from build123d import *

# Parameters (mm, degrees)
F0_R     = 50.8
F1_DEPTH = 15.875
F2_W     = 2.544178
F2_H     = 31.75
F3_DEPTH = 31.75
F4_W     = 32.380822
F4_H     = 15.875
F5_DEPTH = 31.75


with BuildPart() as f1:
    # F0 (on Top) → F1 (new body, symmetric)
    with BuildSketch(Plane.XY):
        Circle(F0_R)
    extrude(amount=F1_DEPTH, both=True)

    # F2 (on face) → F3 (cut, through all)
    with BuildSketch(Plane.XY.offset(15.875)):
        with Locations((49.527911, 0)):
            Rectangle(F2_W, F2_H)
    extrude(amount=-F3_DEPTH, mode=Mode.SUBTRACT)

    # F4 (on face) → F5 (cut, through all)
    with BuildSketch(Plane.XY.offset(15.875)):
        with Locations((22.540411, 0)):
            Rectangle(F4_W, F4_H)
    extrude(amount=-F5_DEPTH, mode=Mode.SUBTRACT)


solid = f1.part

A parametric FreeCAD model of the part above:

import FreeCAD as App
import Part
import Sketcher
Q = App.Units.Quantity


def add_polygon(sketch, points):
    """Adds a closed chain of lines whose ends are joined by coincident constraints."""
    first, n = sketch.GeometryCount, len(points)
    for a, b in zip(points, points[1:] + points[:1]):
        sketch.addGeometry(Part.LineSegment(App.Vector(*a, 0), App.Vector(*b, 0)), False)
    for i in range(n):
        sketch.addConstraint(Sketcher.Constraint("Coincident", first + i, 2, first + (i + 1) % n, 1))

doc = App.newDocument("Part")
body = doc.addObject("PartDesign::Body", "Body")

sketch1 = body.newObject("Sketcher::SketchObject", "Sketch")
sketch1.AttachmentSupport = (doc.getObject("XY_Plane"), [""])
sketch1.MapMode = "FlatFace"
sketch1.addGeometry(Part.Circle(App.Vector(0, 0, 0), App.Vector(0, 0, 1), 51), False)
sketch1.addConstraint([
    Sketcher.Constraint("Coincident", 0, 3, -1, 1),
    Sketcher.Constraint("Diameter", 0, Q("4 in")),
])
pad1 = body.newObject("PartDesign::Pad", "Pad")
pad1.Profile = sketch1
pad1.Length = Q("1.25 in")
pad1.Midplane = True

sketch2 = body.newObject("Sketcher::SketchObject", "Sketch001")
sketch2.AttachmentSupport = (doc.getObject("XY_Plane"), [""])
sketch2.MapMode = "FlatFace"
sketch2.AttachmentOffset = App.Placement(App.Vector(0, 0, 0.625 * 25.4), App.Rotation())
add_polygon(sketch2, [(48.3, 15.9), (48.3, -15.9), (50.8, -15.9), (50.8, 15.9)])
sketch2.addConstraint([
    Sketcher.Constraint("Vertical", 0),
    Sketcher.Constraint("Horizontal", 1),
    Sketcher.Constraint("Vertical", 2),
    Sketcher.Constraint("Horizontal", 3),
    Sketcher.Constraint("DistanceX", -1, 1, 1, 2, Q("2 in")),
    Sketcher.Constraint("DistanceY", 0, 2, 0, 1, Q("1.25 in")),
    Sketcher.Constraint("DistanceY", 0, 2, -1, 1, Q("0.625 in")),
    Sketcher.Constraint("DistanceX", 1, 1, 1, 2, Q("2.544178 mm")),
])
pocket1 = body.newObject("PartDesign::Pocket", "Pocket")
pocket1.Profile = sketch2
pocket1.Type = "ThroughAll"

sketch3 = body.newObject("Sketcher::SketchObject", "Sketch002")
sketch3.AttachmentSupport = (doc.getObject("XY_Plane"), [""])
sketch3.MapMode = "FlatFace"
sketch3.AttachmentOffset = App.Placement(App.Vector(0, 0, 0.625 * 25.4), App.Rotation())
add_polygon(sketch3, [(6, 8), (6, -8), (39, -8), (39, 8)])
sketch3.addConstraint([
    Sketcher.Constraint("Vertical", 0),
    Sketcher.Constraint("Horizontal", 1),
    Sketcher.Constraint("Vertical", 2),
    Sketcher.Constraint("Horizontal", 3),
    Sketcher.Constraint("DistanceY", 0, 2, 0, 1, Q("0.625 in")),
    Sketcher.Constraint("DistanceX", -1, 1, 0, 2, Q("0.25 in")),
    Sketcher.Constraint("DistanceY", 0, 2, -1, 1, Q("0.3125 in")),
    Sketcher.Constraint("DistanceX", 1, 1, 1, 2, Q("32.380822 mm")),
])
pocket2 = body.newObject("PartDesign::Pocket", "Pocket001")
pocket2.Profile = sketch3
pocket2.Type = "ThroughAll"

doc.recompute()
